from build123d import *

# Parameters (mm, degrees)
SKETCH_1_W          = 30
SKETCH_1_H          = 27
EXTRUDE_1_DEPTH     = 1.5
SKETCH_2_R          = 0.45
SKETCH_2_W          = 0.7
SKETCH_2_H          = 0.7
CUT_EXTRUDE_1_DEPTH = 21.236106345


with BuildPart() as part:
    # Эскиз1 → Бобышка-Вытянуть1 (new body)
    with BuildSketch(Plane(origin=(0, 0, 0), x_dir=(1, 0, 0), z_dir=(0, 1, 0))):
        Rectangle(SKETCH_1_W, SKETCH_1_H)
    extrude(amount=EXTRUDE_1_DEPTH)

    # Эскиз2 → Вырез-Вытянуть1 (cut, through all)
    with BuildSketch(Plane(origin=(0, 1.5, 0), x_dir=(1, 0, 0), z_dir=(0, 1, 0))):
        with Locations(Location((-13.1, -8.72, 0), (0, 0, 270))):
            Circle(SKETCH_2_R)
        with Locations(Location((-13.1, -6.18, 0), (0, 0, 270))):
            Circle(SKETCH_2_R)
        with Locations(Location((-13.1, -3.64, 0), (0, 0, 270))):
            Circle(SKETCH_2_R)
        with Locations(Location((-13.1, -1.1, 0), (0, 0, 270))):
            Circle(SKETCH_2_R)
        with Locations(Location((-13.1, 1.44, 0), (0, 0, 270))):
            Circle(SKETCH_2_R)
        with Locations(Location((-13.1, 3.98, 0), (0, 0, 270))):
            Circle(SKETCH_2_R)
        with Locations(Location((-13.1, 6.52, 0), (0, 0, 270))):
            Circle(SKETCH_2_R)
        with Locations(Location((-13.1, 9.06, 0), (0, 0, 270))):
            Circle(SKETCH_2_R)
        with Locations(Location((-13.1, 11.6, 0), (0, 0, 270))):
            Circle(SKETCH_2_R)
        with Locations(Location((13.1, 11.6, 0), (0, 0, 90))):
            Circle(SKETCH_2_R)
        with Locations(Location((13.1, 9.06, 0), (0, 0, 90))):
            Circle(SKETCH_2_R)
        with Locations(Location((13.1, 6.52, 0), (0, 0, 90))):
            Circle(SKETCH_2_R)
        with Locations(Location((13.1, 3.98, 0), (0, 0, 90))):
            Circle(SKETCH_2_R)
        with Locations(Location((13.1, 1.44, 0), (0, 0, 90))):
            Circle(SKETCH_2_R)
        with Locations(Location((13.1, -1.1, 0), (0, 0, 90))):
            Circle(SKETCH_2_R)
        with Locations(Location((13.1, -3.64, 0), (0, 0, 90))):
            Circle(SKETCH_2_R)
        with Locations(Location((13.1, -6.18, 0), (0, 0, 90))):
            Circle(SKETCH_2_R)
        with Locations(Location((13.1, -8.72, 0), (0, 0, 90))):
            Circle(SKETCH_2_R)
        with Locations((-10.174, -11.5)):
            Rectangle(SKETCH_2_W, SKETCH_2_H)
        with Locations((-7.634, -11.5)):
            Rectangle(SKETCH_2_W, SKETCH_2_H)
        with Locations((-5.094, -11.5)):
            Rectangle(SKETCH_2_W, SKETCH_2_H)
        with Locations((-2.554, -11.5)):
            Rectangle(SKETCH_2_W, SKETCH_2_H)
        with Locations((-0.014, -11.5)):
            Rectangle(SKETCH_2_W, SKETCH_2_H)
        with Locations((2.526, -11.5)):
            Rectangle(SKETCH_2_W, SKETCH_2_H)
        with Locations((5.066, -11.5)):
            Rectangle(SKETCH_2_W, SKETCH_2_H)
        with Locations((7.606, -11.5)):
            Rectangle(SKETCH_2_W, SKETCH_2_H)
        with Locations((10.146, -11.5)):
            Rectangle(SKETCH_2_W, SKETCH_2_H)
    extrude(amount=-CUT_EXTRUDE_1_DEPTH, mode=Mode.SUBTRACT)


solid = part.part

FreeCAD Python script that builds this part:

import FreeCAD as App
import Part
import Sketcher
from FreeCAD import Vector
Q = App.Units.Quantity


def add_polygon(sketch, points):
    """Adds a closed chain of lines whose ends are joined by coincident constraints."""
    first, n = sketch.GeometryCount, len(points)
    for a, b in zip(points, points[1:] + points[:1]):
        sketch.addGeometry(Part.LineSegment(App.Vector(*a, 0), App.Vector(*b, 0)), False)
    for i in range(n):
        sketch.addConstraint(Sketcher.Constraint("Coincident", first + i, 2, first + (i + 1) % n, 1))

doc = App.newDocument("Part")
body = doc.addObject("PartDesign::Body", "Body")

# Sketch on XZ plane
sketch1 = body.newObject("Sketcher::SketchObject", "Sketch")
sketch1.AttachmentSupport = (doc.getObject("XZ_Plane"), [""])
sketch1.MapMode = "FlatFace"
add_polygon(sketch1, [(-15, -13.5), (-15, 13.5), (15, 13.5), (15, -13.5)])  # lines 0-3
sketch1.addConstraint([
    Sketcher.Constraint("Vertical", 0),
    Sketcher.Constraint("Horizontal", 1),
    Sketcher.Constraint("Vertical", 2),
    Sketcher.Constraint("Horizontal", 3),
    Sketcher.Constraint("Symmetric", 0, 2, 2, 2, -1, 1),
    Sketcher.Constraint("DistanceX", 1, 1, 1, 2, Q("30 mm")),
    Sketcher.Constraint("DistanceY", 0, 1, 0, 2, Q("27 mm")),
])
pad1 = body.newObject("PartDesign::Pad", "Pad")
pad1.Profile = sketch1
pad1.Length = 1.5
pad1.Reversed = True

# Sketch on XZ plane
sketch2 = body.newObject("Sketcher::SketchObject", "Sketch001")
sketch2.AttachmentSupport = (doc.getObject("XZ_Plane"), [""])
sketch2.MapMode = "FlatFace"
sketch2.AttachmentOffset = App.Placement(Vector(0, 0, -1.5), App.Rotation())
sketch2.addGeometry(Part.Circle(Vector(-13.1, 8.72, 0), Vector(0, 0, 1), 0.45), False)  # 0
sketch2.addGeometry(Part.Circle(Vector(-13.1, 6.18, 0), Vector(0, 0, 1), 0.45), False)  # 1
sketch2.addGeometry(Part.Circle(Vector(-13.1, 3.64, 0), Vector(0, 0, 1), 0.45), False)  # 2
sketch2.addGeometry(Part.Circle(Vector(-13.1, 1.1, 0), Vector(0, 0, 1), 0.45), False)  # 3
sketch2.addGeometry(Part.Circle(Vector(-13.1, -1.44, 0), Vector(0, 0, 1), 0.45), False)  # 4
sketch2.addGeometry(Part.Circle(Vector(-13.1, -3.98, 0), Vector(0, 0, 1), 0.45), False)  # 5
sketch2.addGeometry(Part.Circle(Vector(-13.1, -6.52, 0), Vector(0, 0, 1), 0.45), False)  # 6
sketch2.addGeometry(Part.Circle(Vector(-13.1, -9.06, 0), Vector(0, 0, 1), 0.45), False)  # 7
sketch2.addGeometry(Part.Circle(Vector(-13.1, -11.6, 0), Vector(0, 0, 1), 0.45), False)  # 8
sketch2.addGeometry(Part.Circle(Vector(13.1, -11.6, 0), Vector(0, 0, 1), 0.45), False)  # 9
sketch2.addGeometry(Part.Circle(Vector(13.1, -9.06, 0), Vector(0, 0, 1), 0.45), False)  # 10
sketch2.addGeometry(Part.Circle(Vector(13.1, -6.52, 0), Vector(0, 0, 1), 0.45), False)  # 11
sketch2.addGeometry(Part.Circle(Vector(13.1, -3.98, 0), Vector(0, 0, 1), 0.45), False)  # 12
sketch2.addGeometry(Part.Circle(Vector(13.1, -1.44, 0), Vector(0, 0, 1), 0.45), False)  # 13
sketch2.addGeometry(Part.Circle(Vector(13.1, 1.1, 0), Vector(0, 0, 1), 0.45), False)  # 14
sketch2.addGeometry(Part.Circle(Vector(13.1, 3.64, 0), Vector(0, 0, 1), 0.45), False)  # 15
sketch2.addGeometry(Part.Circle(Vector(13.1, 6.18, 0), Vector(0, 0, 1), 0.45), False)  # 16
sketch2.addGeometry(Part.Circle(Vector(13.1, 8.72, 0), Vector(0, 0, 1), 0.45), False)  # 17
add_polygon(sketch2, [(-10.524, 11.15), (-10.524, 11.85), (-9.824, 11.85), (-9.824, 11.15)])  # lines 18-21
add_polygon(sketch2, [(-7.984, 11.15), (-7.984, 11.85), (-7.284, 11.85), (-7.284, 11.15)])  # lines 22-25
add_polygon(sketch2, [(-5.444, 11.15), (-5.444, 11.85), (-4.744, 11.85), (-4.744, 11.15)])  # lines 26-29
add_polygon(sketch2, [(-2.904, 11.15), (-2.904, 11.85), (-2.204, 11.85), (-2.204, 11.15)])  # lines 30-33
add_polygon(sketch2, [(-0.364, 11.15), (-0.364, 11.85), (0.336, 11.85), (0.336, 11.15)])  # lines 34-37
add_polygon(sketch2, [(2.176, 11.15), (2.176, 11.85), (2.876, 11.85), (2.876, 11.15)])  # lines 38-41
add_polygon(sketch2, [(4.716, 11.15), (4.716, 11.85), (5.416, 11.85), (5.416, 11.15)])  # lines 42-45
add_polygon(sketch2, [(7.256, 11.15), (7.256, 11.85), (7.956, 11.85), (7.956, 11.15)])  # lines 46-49
add_polygon(sketch2, [(9.796, 11.15), (9.796, 11.85), (10.496, 11.85), (10.496, 11.15)])  # lines 50-53
sketch2.addConstraint([
    Sketcher.Constraint("Vertical", 18),
    Sketcher.Constraint("Horizontal", 19),
    Sketcher.Constraint("Vertical", 20),
    Sketcher.Constraint("Horizontal", 21),
    Sketcher.Constraint("Vertical", 22),
    Sketcher.Constraint("Horizontal", 23),
    Sketcher.Constraint("Vertical", 24),
    Sketcher.Constraint("Horizontal", 25),
    Sketcher.Constraint("Vertical", 26),
    Sketcher.Constraint("Horizontal", 27),
    Sketcher.Constraint("Vertical", 28),
    Sketcher.Constraint("Horizontal", 29),
    Sketcher.Constraint("Vertical", 30),
    Sketcher.Constraint("Horizontal", 31),
    Sketcher.Constraint("Vertical", 32),
    Sketcher.Constraint("Horizontal", 33),
    Sketcher.Constraint("Vertical", 34),
    Sketcher.Constraint("Horizontal", 35),
    Sketcher.Constraint("Vertical", 36),
    Sketcher.Constraint("Horizontal", 37),
    Sketcher.Constraint("Vertical", 38),
    Sketcher.Constraint("Horizontal", 39),
    Sketcher.Constraint("Vertical", 40),
    Sketcher.Constraint("Horizontal", 41),
    Sketcher.Constraint("Vertical", 42),
    Sketcher.Constraint("Horizontal", 43),
    Sketcher.Constraint("Vertical", 44),
    Sketcher.Constraint("Horizontal", 45),
    Sketcher.Constraint("Vertical", 46),
    Sketcher.Constraint("Horizontal", 47),
    Sketcher.Constraint("Vertical", 48),
    Sketcher.Constraint("Horizontal", 49),
    Sketcher.Constraint("Vertical", 50),
    Sketcher.Constraint("Horizontal", 51),
    Sketcher.Constraint("Vertical", 52),
    Sketcher.Constraint("Horizontal", 53),
    Sketcher.Constraint("Equal", 0, 1),
    Sketcher.Constraint("Equal", 1, 2),
    Sketcher.Constraint("Equal", 2, 3),
    Sketcher.Constraint("Equal", 3, 4),
    Sketcher.Constraint("Equal", 4, 5),
    Sketcher.Constraint("Equal", 5, 6),
    Sketcher.Constraint("Equal", 6, 7),
    Sketcher.Constraint("Equal", 7, 8),
    Sketcher.Constraint("Equal", 8, 9),
    Sketcher.Constraint("Equal", 9, 10),
    Sketcher.Constraint("Equal", 10, 11),
    Sketcher.Constraint("Equal", 11, 12),
    Sketcher.Constraint("Equal", 12, 13),
    Sketcher.Constraint("Equal", 13, 14),
    Sketcher.Constraint("Equal", 14, 15),
    Sketcher.Constraint("Equal", 15, 16),
    Sketcher.Constraint("Equal", 16, 17),
    Sketcher.Constraint("Symmetric", 8, 3, 9, 3, -2),
    Sketcher.Constraint("Symmetric", 7, 3, 10, 3, -2),
    Sketcher.Constraint("Symmetric", 6, 3, 11, 3, -2),
    Sketcher.Constraint("Symmetric", 5, 3, 12, 3, -2),
    Sketcher.Constraint("Symmetric", 4, 3, 13, 3, -2),
    Sketcher.Constraint("Symmetric", 3, 3, 14, 3, -2),
    Sketcher.Constraint("Symmetric", 2, 3, 15, 3, -2),
    Sketcher.Constraint("Symmetric", 1, 3, 16, 3, -2),
    Sketcher.Constraint("Symmetric", 0, 3, 17, 3, -2),
    Sketcher.Constraint("Horizontal", 19, 2, 22, 2),
    Sketcher.Constraint("Horizontal", 21, 2, 24, 2),
    Sketcher.Constraint("Horizontal", 23, 2, 26, 2),
    Sketcher.Constraint("Horizontal", 25, 2, 28, 2),
    Sketcher.Constraint("Horizontal", 27, 2, 30, 2),
    Sketcher.Constraint("Horizontal", 29, 2, 32, 2),
    Sketcher.Constraint("Horizontal", 31, 2, 34, 2),
    Sketcher.Constraint("Horizontal", 33, 2, 36, 2),
    Sketcher.Constraint("Horizontal", 35, 2, 38, 2),
    Sketcher.Constraint("Horizontal", 37, 2, 40, 2),
    Sketcher.Constraint("Horizontal", 39, 2, 42, 2),
    Sketcher.Constraint("Horizontal", 41, 2, 44, 2),
    Sketcher.Constraint("Horizontal", 43, 2, 46, 2),
    Sketcher.Constraint("Horizontal", 45, 2, 48, 2),
    Sketcher.Constraint("Horizontal", 47, 2, 50, 2),
    Sketcher.Constraint("Horizontal", 49, 2, 52, 2),
    Sketcher.Constraint("Vertical", 0, 3, 1, 3),
    Sketcher.Constraint("Vertical", 1, 3, 2, 3),
    Sketcher.Constraint("Vertical", 2, 3, 3, 3),
    Sketcher.Constraint("Vertical", 3, 3, 4, 3),
    Sketcher.Constraint("Vertical", 4, 3, 5, 3),
    Sketcher.Constraint("Vertical", 5, 3, 6, 3),
    Sketcher.Constraint("Vertical", 6, 3, 7, 3),
    Sketcher.Constraint("Vertical", 7, 3, 8, 3),
    Sketcher.Constraint("Equal", 21, 23),
    Sketcher.Constraint("Equal", 25, 27),
    Sketcher.Constraint("Equal", 29, 31),
    Sketcher.Constraint("Equal", 33, 35),
    Sketcher.Constraint("Equal", 37, 39),
    Sketcher.Constraint("Equal", 41, 43),
    Sketcher.Constraint("Equal", 45, 47),
    Sketcher.Constraint("Equal", 49, 51),
    Sketcher.Constraint("Equal", 53, 18),
    Sketcher.Constraint("Diameter", 0, Q("0.9 mm")),
    Sketcher.Constraint("DistanceX", 19, 1, 19, 2, Q("0.7 mm")),
    Sketcher.Constraint("DistanceX", 0, 3, -1, 1, Q("13.1 mm")),
    Sketcher.Constraint("DistanceY", -1, 1, 3, 3, Q("1.1 mm")),
    Sketcher.Constraint("DistanceY", 8, 3, -1, 1, Q("11.6 mm")),
    Sketcher.Constraint("DistanceY", 5, 3, 0, 3, Q("12.7 mm")),
    Sketcher.Constraint("DistanceY", 6, 3, 1, 3, Q("12.7 mm")),
    Sketcher.Constraint("DistanceY", 7, 3, 2, 3, Q("12.7 mm")),
    Sketcher.Constraint("DistanceY", -1, 1, 0, 3, Q("8.72 mm")),
    Sketcher.Constraint("DistanceY", -1, 1, 1, 3, Q("6.18 mm")),
    Sketcher.Constraint("DistanceY", -1, 1, 2, 3, Q("3.64 mm")),
    Sketcher.Constraint("DistanceY", 4, 3, -1, 1, Q("1.44 mm")),
    Sketcher.Constraint("DistanceY", -1, 1, 18, 2, Q("11.85 mm")),
    Sketcher.Constraint("DistanceX", 19, 2, 22, 2, Q("1.84 mm")),
    Sketcher.Constraint("DistanceX", 23, 2, 26, 2, Q("1.84 mm")),
    Sketcher.Constraint("DistanceX", 27, 2, 30, 2, Q("1.84 mm")),
    Sketcher.Constraint("DistanceX", 31, 2, 34, 2, Q("1.84 mm")),
    Sketcher.Constraint("DistanceX", 35, 2, 38, 2, Q("1.84 mm")),
    Sketcher.Constraint("DistanceX", 39, 2, 42, 2, Q("1.84 mm")),
    Sketcher.Constraint("DistanceX", 43, 2, 46, 2, Q("1.84 mm")),
    Sketcher.Constraint("DistanceX", 47, 2, 50, 2, Q("1.84 mm")),
    Sketcher.Constraint("DistanceX", 18, 2, -1, 1, Q("10.524 mm")),
])
pocket1 = body.newObject("PartDesign::Pocket", "Pocket")
pocket1.Profile = sketch2
pocket1.Type = "ThroughAll"
pocket1.Reversed = True

doc.recompute()
